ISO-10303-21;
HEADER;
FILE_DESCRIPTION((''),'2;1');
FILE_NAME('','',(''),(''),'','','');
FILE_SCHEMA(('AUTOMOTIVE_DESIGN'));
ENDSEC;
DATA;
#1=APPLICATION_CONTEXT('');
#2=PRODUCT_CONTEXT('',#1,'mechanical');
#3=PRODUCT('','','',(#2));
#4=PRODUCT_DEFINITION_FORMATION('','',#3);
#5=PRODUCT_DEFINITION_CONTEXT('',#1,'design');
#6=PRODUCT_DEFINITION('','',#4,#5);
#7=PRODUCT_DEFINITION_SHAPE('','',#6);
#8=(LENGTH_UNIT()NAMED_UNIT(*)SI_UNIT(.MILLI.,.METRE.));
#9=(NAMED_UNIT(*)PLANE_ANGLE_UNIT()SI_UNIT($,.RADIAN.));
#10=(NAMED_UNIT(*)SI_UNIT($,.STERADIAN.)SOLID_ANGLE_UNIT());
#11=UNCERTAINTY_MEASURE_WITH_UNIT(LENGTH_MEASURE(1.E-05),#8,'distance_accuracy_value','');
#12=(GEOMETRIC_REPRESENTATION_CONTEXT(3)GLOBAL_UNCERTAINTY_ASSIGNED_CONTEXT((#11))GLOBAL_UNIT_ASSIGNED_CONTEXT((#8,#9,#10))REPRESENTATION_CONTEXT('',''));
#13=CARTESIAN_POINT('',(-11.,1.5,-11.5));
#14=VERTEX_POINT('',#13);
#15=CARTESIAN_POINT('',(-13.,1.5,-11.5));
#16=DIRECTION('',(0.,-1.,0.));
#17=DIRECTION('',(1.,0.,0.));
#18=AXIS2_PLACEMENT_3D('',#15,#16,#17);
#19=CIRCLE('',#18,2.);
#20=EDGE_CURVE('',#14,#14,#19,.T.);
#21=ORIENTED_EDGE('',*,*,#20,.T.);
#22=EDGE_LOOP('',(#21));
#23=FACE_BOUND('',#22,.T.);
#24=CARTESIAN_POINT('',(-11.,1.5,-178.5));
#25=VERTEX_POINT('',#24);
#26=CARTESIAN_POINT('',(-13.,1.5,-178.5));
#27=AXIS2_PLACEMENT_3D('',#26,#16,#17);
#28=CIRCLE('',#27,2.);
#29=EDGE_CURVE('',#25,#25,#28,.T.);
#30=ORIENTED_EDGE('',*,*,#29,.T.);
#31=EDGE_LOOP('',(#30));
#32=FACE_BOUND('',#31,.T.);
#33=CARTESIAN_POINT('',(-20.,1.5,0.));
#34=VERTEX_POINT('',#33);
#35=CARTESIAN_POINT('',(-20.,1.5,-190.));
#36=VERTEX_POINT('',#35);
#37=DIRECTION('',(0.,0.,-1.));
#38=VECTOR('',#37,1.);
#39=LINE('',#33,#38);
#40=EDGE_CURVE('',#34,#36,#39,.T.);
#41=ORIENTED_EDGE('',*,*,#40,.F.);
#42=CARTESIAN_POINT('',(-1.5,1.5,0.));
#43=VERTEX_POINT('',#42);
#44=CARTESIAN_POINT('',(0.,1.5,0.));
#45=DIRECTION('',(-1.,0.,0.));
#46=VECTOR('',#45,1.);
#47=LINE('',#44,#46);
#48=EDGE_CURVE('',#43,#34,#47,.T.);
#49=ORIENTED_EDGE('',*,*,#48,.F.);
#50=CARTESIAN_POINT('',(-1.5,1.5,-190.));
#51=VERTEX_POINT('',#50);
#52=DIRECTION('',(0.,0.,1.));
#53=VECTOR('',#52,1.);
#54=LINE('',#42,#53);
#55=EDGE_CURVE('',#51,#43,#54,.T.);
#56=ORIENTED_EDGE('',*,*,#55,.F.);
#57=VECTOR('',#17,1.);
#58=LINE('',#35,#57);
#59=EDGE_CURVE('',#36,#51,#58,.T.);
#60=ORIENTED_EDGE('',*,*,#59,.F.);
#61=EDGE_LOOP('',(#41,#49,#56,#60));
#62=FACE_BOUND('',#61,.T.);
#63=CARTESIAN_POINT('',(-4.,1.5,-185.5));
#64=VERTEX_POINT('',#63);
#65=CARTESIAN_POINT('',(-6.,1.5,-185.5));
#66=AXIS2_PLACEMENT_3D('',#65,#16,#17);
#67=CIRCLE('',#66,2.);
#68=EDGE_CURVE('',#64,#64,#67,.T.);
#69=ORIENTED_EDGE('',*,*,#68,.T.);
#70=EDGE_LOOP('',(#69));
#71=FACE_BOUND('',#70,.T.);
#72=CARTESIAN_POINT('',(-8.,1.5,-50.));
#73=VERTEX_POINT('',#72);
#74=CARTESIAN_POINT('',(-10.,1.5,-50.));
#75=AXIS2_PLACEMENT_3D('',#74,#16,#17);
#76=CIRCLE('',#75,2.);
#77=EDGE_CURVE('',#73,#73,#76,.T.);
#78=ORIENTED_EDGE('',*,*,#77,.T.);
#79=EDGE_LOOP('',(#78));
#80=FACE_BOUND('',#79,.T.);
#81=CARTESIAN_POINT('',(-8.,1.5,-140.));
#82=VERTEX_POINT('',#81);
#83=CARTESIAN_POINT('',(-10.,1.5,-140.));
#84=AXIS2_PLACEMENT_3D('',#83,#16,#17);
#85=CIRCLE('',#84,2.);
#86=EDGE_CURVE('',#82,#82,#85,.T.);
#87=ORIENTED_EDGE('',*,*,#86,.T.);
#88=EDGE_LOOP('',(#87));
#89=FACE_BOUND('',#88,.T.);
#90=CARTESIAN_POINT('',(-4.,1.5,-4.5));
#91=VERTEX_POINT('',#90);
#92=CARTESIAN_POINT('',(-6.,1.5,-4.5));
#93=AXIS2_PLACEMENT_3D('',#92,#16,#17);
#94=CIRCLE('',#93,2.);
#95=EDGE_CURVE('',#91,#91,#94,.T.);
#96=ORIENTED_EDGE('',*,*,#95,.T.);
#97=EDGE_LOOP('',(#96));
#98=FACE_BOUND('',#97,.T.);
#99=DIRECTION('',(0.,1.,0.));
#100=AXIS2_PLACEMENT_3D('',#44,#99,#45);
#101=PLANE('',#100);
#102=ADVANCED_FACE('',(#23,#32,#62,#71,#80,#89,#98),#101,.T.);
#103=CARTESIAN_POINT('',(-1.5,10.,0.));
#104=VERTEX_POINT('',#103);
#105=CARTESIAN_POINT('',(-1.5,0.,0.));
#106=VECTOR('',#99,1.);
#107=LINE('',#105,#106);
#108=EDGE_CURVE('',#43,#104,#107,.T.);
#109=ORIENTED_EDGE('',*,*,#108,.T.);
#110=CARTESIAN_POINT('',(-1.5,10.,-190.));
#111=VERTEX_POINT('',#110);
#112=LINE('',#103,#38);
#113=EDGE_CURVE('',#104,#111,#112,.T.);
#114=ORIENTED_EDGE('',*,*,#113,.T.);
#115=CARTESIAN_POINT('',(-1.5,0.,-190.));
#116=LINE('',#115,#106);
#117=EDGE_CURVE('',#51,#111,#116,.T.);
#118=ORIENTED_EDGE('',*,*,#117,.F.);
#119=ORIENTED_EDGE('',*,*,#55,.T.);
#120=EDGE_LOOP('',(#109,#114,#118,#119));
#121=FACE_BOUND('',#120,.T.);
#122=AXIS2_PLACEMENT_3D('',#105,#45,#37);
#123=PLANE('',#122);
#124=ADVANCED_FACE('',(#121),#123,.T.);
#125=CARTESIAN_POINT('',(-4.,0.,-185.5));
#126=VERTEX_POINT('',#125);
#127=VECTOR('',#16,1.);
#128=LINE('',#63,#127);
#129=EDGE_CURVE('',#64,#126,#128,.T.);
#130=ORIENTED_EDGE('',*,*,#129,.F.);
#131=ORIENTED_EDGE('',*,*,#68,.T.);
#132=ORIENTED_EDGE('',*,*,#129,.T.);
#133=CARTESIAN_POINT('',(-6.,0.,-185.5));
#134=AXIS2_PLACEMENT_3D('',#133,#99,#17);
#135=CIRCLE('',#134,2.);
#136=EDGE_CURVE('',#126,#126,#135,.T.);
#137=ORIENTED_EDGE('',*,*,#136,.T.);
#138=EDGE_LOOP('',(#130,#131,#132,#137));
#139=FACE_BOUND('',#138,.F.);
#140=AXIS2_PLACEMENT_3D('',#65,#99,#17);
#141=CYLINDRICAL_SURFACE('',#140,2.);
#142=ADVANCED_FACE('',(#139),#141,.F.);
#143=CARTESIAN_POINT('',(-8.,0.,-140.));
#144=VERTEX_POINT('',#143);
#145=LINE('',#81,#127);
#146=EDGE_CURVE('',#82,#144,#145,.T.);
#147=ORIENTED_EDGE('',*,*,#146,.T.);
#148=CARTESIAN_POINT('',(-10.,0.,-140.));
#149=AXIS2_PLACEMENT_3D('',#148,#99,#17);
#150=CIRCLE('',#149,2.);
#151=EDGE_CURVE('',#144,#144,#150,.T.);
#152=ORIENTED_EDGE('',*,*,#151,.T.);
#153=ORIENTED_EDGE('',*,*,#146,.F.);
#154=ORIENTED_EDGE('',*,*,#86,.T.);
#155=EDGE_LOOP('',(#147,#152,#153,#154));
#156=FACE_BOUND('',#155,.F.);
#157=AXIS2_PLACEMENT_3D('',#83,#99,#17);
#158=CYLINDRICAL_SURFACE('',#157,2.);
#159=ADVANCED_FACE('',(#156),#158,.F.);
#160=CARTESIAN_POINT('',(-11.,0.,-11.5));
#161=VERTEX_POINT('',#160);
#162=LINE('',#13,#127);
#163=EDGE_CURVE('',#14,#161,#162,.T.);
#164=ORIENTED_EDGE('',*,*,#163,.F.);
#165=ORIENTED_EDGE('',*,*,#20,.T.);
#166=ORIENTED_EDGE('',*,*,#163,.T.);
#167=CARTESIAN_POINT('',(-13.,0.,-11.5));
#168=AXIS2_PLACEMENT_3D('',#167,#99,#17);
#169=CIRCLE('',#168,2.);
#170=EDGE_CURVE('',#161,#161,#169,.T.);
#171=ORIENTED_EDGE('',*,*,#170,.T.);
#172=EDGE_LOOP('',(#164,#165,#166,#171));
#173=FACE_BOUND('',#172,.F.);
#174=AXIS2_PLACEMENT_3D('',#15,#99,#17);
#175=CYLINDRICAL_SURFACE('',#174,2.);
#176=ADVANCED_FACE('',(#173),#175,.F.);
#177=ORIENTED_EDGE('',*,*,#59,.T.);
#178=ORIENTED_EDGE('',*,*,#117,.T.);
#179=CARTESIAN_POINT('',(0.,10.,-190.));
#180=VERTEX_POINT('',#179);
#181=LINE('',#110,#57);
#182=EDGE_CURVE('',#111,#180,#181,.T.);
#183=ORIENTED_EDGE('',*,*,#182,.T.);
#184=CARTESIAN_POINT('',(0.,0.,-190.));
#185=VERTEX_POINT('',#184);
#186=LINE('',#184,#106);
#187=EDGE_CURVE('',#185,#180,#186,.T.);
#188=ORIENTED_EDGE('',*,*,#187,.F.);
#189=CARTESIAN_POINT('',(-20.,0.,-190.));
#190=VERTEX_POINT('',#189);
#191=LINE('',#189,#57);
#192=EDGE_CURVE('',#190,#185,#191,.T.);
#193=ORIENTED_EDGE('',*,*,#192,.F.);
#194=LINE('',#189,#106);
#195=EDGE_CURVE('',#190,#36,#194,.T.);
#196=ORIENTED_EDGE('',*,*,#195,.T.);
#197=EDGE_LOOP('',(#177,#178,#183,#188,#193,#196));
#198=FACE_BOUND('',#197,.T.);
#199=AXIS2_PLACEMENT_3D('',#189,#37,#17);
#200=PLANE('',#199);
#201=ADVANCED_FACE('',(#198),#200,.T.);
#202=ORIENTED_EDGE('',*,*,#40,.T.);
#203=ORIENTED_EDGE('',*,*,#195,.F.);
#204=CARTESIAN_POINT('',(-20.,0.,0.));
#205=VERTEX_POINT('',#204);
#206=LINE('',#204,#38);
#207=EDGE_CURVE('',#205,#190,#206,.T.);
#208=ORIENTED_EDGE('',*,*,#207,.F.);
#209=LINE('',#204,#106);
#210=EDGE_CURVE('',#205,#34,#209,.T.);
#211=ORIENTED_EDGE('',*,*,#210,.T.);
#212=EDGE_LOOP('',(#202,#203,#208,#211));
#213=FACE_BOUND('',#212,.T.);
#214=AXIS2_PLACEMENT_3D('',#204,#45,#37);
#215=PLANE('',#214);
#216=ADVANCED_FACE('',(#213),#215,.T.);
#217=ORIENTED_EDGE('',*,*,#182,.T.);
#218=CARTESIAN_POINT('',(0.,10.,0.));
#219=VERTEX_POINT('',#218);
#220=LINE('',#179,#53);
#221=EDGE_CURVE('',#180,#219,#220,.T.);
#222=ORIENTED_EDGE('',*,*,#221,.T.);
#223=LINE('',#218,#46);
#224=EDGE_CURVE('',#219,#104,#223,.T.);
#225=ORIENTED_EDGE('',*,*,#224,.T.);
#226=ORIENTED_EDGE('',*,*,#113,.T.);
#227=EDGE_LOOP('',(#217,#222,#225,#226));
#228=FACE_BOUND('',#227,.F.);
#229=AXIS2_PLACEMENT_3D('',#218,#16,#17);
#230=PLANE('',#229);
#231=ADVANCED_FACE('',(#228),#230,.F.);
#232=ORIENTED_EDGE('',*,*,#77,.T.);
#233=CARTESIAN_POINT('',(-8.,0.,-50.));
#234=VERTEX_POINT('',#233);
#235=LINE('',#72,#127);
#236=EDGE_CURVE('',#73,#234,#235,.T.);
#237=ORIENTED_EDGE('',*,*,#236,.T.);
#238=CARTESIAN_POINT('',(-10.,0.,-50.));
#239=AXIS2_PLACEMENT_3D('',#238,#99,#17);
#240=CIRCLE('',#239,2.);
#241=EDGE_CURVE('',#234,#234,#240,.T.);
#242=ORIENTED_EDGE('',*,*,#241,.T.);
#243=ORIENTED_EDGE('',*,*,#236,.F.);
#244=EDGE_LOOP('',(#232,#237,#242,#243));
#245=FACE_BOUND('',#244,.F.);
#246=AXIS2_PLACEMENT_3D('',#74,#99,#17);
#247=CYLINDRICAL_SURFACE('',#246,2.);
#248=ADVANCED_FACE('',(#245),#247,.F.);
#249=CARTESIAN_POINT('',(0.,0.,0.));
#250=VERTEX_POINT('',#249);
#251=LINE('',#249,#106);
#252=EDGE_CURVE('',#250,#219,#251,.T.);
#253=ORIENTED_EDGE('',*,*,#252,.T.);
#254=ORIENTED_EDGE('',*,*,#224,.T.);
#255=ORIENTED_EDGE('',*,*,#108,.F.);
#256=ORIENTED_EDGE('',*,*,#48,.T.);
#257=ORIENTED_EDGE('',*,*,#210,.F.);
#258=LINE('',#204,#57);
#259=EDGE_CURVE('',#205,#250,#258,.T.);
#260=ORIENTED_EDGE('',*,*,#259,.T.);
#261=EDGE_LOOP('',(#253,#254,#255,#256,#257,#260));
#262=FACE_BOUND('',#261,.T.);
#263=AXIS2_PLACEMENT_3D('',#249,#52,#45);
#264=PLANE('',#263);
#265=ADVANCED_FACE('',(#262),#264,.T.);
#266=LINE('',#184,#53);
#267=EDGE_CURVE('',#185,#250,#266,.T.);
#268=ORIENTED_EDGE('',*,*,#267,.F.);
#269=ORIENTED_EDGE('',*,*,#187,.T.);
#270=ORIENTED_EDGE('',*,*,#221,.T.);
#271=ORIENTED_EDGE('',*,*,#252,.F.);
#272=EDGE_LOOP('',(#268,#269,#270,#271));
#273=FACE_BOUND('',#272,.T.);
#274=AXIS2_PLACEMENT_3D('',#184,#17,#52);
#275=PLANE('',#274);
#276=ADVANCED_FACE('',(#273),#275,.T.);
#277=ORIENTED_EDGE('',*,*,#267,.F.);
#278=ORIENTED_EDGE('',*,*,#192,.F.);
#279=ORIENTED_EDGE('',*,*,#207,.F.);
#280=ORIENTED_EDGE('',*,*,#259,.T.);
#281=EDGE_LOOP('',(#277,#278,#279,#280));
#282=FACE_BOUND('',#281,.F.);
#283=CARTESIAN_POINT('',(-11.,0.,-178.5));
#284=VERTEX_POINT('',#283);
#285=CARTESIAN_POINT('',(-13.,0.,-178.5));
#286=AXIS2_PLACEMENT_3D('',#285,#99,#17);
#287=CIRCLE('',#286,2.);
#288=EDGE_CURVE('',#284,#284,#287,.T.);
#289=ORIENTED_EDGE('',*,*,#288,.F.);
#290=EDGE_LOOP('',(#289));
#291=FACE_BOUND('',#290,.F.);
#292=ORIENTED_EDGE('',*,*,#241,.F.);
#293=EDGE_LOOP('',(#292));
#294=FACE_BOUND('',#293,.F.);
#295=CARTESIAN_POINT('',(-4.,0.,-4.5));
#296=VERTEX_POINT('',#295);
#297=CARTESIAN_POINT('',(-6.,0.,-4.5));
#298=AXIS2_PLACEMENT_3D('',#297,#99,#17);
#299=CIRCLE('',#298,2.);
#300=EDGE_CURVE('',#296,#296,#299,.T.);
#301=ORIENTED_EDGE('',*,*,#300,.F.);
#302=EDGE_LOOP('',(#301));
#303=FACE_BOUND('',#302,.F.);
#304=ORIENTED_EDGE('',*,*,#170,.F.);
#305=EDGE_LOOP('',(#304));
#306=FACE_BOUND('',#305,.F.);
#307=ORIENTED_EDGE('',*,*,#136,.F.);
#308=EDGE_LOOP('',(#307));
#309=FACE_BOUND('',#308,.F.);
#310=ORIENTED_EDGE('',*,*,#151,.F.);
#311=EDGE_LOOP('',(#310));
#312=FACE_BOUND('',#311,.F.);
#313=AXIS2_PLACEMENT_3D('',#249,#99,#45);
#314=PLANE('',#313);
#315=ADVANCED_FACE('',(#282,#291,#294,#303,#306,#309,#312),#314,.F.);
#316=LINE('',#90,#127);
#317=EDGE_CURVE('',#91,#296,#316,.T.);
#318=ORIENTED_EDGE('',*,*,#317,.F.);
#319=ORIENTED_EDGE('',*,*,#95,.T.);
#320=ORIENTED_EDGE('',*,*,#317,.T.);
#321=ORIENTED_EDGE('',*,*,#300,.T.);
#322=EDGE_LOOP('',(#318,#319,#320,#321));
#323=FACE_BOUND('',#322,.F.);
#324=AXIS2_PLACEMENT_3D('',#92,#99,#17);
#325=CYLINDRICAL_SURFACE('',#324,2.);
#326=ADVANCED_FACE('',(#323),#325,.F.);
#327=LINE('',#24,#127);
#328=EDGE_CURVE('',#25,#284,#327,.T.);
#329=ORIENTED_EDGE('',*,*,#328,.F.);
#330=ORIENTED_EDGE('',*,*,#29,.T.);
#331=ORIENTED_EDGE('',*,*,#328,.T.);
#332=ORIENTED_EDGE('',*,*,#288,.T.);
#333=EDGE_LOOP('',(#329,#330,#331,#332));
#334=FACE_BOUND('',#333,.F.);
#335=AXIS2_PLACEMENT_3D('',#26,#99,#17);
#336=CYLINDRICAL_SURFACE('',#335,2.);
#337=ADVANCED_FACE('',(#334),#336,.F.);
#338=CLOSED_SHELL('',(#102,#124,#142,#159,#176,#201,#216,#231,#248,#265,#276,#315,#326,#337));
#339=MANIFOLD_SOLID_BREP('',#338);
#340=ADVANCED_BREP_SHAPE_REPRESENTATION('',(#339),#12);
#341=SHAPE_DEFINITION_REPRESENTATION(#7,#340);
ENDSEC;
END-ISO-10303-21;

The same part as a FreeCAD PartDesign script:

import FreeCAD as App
import Part
import Sketcher

V = App.Vector
Q = App.Units.Quantity

doc = App.newDocument("Part")
params = doc.addObject("Spreadsheet::Sheet", "Params")
for row, (alias, value) in enumerate([
    ("sketch1_width", "20 mm"),
    ("sketch1_height", "190 mm"),
    ("pad1_length", "1.5 mm"),
    ("sketch2_height", "190 mm"),
    ("sketch2_width", "1.5 mm"),
    ("pad2_length", "10 mm"),
    ("sketch3_diameter", "4 mm"),
    ("pocket1_length", "10 mm"),
], start=1):
    params.set(f"A{row}", alias)
    params.set(f"B{row}", "=" + value)
    params.setAlias(f"B{row}", alias)

body = doc.addObject("PartDesign::Body", "Body")

sketch1 = body.newObject("Sketcher::SketchObject", "Sketch")
sketch1.AttachmentSupport = (doc.getObject("XZ_Plane"), [""])
sketch1.MapMode = "FlatFace"
sketch1.addGeometry(Part.LineSegment(V(-20, 0, 0), V(0, 0, 0)), False)
sketch1.addGeometry(Part.LineSegment(V(0, 0, 0), V(0, -190, 0)), False)
sketch1.addGeometry(Part.LineSegment(V(0, -190, 0), V(-20, -190, 0)), False)
sketch1.addGeometry(Part.LineSegment(V(-20, -190, 0), V(-20, 0, 0)), False)
sketch1.addConstraint(Sketcher.Constraint("Coincident", 0, 2, 1, 1))
sketch1.addConstraint(Sketcher.Constraint("Coincident", 1, 2, 2, 1))
sketch1.addConstraint(Sketcher.Constraint("Coincident", 2, 2, 3, 1))
sketch1.addConstraint(Sketcher.Constraint("Coincident", 3, 2, 0, 1))
sketch1.addConstraint(Sketcher.Constraint("Horizontal", 0))
sketch1.addConstraint(Sketcher.Constraint("Vertical", 1))
sketch1.addConstraint(Sketcher.Constraint("Horizontal", 2))
sketch1.addConstraint(Sketcher.Constraint("Vertical", 3))
sketch1.addConstraint(Sketcher.Constraint("Coincident", 0, 2, -1, 1))
sketch1.addConstraint(Sketcher.Constraint("DistanceX", 0, 1, 0, 2, Q("20 mm")))
sketch1.addConstraint(Sketcher.Constraint("DistanceY", 1, 2, 1, 1, Q("190 mm")))
sketch1.setExpression("Constraints[9]", "Params.sketch1_width")
sketch1.setExpression("Constraints[10]", "Params.sketch1_height")
pad1 = body.newObject("PartDesign::Pad", "Pad")
pad1.Profile = sketch1
pad1.setExpression("Length", "Params.pad1_length")
pad1.Reversed = True

sketch2 = body.newObject("Sketcher::SketchObject", "Sketch001")
sketch2.AttachmentSupport = (doc.getObject("XZ_Plane"), [""])
sketch2.MapMode = "FlatFace"
sketch2.addGeometry(Part.LineSegment(V(0, -190, 0), V(0, 0, 0)), False)
sketch2.addGeometry(Part.LineSegment(V(0, 0, 0), V(-1.5, 0, 0)), False)
sketch2.addGeometry(Part.LineSegment(V(-1.5, 0, 0), V(-1.5, -190, 0)), False)
sketch2.addGeometry(Part.LineSegment(V(-1.5, -190, 0), V(0, -190, 0)), False)
sketch2.addConstraint(Sketcher.Constraint("Coincident", 0, 2, 1, 1))
sketch2.addConstraint(Sketcher.Constraint("Coincident", 1, 2, 2, 1))
sketch2.addConstraint(Sketcher.Constraint("Coincident", 2, 2, 3, 1))
sketch2.addConstraint(Sketcher.Constraint("Coincident", 3, 2, 0, 1))
sketch2.addConstraint(Sketcher.Constraint("Vertical", 0))
sketch2.addConstraint(Sketcher.Constraint("Horizontal", 1))
sketch2.addConstraint(Sketcher.Constraint("Vertical", 2))
sketch2.addConstraint(Sketcher.Constraint("Horizontal", 3))
sketch2.addConstraint(Sketcher.Constraint("Coincident", 0, 2, -1, 1))
sketch2.addConstraint(Sketcher.Constraint("DistanceY", 0, 1, 0, 2, Q("190 mm")))
sketch2.addConstraint(Sketcher.Constraint("DistanceX", 1, 2, 1, 1, Q("1.5 mm")))
sketch2.setExpression("Constraints[9]", "Params.sketch2_height")
sketch2.setExpression("Constraints[10]", "Params.sketch2_width")
pad2 = body.newObject("PartDesign::Pad", "Pad001")
pad2.Profile = sketch2
pad2.setExpression("Length", "Params.pad2_length")
pad2.Reversed = True

sketch3 = body.newObject("Sketcher::SketchObject", "Sketch002")
sketch3.AttachmentSupport = (doc.getObject("XZ_Plane"), [""])
sketch3.MapMode = "FlatFace"
sketch3.AttachmentOffset = App.Placement(V(0, 0, -1.5), App.Rotation())
sketch3.addGeometry(Part.Circle(V(-6, -4.5, 0), V(0, 0, 1), 2), False)
sketch3.addGeometry(Part.Circle(V(-13, -11.5, 0), V(0, 0, 1), 2), False)
sketch3.addGeometry(Part.Circle(V(-6, -185.5, 0), V(0, 0, 1), 2), False)
sketch3.addGeometry(Part.Circle(V(-13, -178.5, 0), V(0, 0, 1), 2), False)
sketch3.addGeometry(Part.Circle(V(-10, -140, 0), V(0, 0, 1), 2), False)
sketch3.addGeometry(Part.Circle(V(-10, -50, 0), V(0, 0, 1), 2), False)
sketch3.addConstraint(Sketcher.Constraint("Equal", 0, 1))
sketch3.addConstraint(Sketcher.Constraint("Equal", 1, 2))
sketch3.addConstraint(Sketcher.Constraint("Equal", 2, 3))
sketch3.addConstraint(Sketcher.Constraint("Equal", 3, 4))
sketch3.addConstraint(Sketcher.Constraint("Equal", 4, 5))
sketch3.addConstraint(Sketcher.Constraint("Vertical", 0, 3, 2, 3))
sketch3.addConstraint(Sketcher.Constraint("Vertical", 1, 3, 3, 3))
sketch3.addConstraint(Sketcher.Constraint("Vertical", 4, 3, 5, 3))
sketch3.addConstraint(Sketcher.Constraint("Diameter", 0, Q("4 mm")))
sketch3.addConstraint(Sketcher.Constraint("DistanceX", 4, 3, -1, 1, Q("10 mm")))
sketch3.addConstraint(Sketcher.Constraint("DistanceY", 5, 3, -1, 1, Q("50 mm")))
sketch3.addConstraint(Sketcher.Constraint("DistanceX", 1, 3, 0, 3, Q("7 mm")))
sketch3.addConstraint(Sketcher.Constraint("DistanceY", 1, 3, 0, 3, Q("7 mm")))
sketch3.addConstraint(Sketcher.Constraint("DistanceY", 2, 3, 3, 3, Q("7 mm")))
sketch3.addConstraint(Sketcher.Constraint("DistanceX", 4, 3, 2, 3, Q("4 mm")))
sketch3.addConstraint(Sketcher.Constraint("DistanceY", 4, 3, 5, 3, Q("90 mm")))
sketch3.addConstraint(Sketcher.Constraint("DistanceY", 2, 3, 1, 3, Q("174 mm")))
sketch3.addConstraint(Sketcher.Constraint("DistanceY", 0, 3, -1, 1, Q("4.5 mm")))
sketch3.setExpression("Constraints[8]", "Params.sketch3_diameter")
pocket1 = body.newObject("PartDesign::Pocket", "Pocket")
pocket1.Profile = sketch3
pocket1.setExpression("Length", "Params.pocket1_length")
pocket1.Reversed = True

doc.recompute()
